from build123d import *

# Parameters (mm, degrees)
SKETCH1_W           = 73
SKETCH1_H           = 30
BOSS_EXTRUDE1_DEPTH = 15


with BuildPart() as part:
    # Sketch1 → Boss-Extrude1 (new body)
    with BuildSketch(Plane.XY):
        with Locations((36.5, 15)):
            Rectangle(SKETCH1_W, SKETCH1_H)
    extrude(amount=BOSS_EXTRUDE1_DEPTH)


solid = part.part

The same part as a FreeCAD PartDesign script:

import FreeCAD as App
import Part
import Sketcher
from FreeCAD import Vector
Q = App.Units.Quantity

doc = App.newDocument("Part")
body = doc.addObject("PartDesign::Body", "Body")

# Sketch on XY plane
sketch1 = body.newObject("Sketcher::SketchObject", "Sketch")
sketch1.AttachmentSupport = (doc.getObject("XY_Plane"), [""])
sketch1.MapMode = "FlatFace"
sketch1.addGeometry([
    Part.LineSegment(Vector(0, 30, 0), Vector(0, 0, 0)),
    Part.LineSegment(Vector(0, 0, 0), Vector(73, 0, 0)),
    Part.LineSegment(Vector(73, 0, 0), Vector(73, 30, 0)),
    Part.LineSegment(Vector(73, 30, 0), Vector(0, 30, 0)),
], False)
sketch1.addConstraint([
    Sketcher.Constraint("Coincident", 0, 2, 1, 1),
    Sketcher.Constraint("Coincident", 1, 2, 2, 1),
    Sketcher.Constraint("Coincident", 2, 2, 3, 1),
    Sketcher.Constraint("Coincident", 3, 2, 0, 1),
    Sketcher.Constraint("Vertical", 0),
    Sketcher.Constraint("Horizontal", 1),
    Sketcher.Constraint("Vertical", 2),
    Sketcher.Constraint("Horizontal", 3),
    Sketcher.Constraint("Coincident", 0, 2, -1, 1),
    Sketcher.Constraint("DistanceX", 1, 1, 1, 2, Q("73 mm")),
    Sketcher.Constraint("DistanceY", 0, 2, 0, 1, Q("30 mm")),
])
pad1 = body.newObject("PartDesign::Pad", "Pad")
pad1.Profile = sketch1
pad1.Length = 15

doc.recompute()
